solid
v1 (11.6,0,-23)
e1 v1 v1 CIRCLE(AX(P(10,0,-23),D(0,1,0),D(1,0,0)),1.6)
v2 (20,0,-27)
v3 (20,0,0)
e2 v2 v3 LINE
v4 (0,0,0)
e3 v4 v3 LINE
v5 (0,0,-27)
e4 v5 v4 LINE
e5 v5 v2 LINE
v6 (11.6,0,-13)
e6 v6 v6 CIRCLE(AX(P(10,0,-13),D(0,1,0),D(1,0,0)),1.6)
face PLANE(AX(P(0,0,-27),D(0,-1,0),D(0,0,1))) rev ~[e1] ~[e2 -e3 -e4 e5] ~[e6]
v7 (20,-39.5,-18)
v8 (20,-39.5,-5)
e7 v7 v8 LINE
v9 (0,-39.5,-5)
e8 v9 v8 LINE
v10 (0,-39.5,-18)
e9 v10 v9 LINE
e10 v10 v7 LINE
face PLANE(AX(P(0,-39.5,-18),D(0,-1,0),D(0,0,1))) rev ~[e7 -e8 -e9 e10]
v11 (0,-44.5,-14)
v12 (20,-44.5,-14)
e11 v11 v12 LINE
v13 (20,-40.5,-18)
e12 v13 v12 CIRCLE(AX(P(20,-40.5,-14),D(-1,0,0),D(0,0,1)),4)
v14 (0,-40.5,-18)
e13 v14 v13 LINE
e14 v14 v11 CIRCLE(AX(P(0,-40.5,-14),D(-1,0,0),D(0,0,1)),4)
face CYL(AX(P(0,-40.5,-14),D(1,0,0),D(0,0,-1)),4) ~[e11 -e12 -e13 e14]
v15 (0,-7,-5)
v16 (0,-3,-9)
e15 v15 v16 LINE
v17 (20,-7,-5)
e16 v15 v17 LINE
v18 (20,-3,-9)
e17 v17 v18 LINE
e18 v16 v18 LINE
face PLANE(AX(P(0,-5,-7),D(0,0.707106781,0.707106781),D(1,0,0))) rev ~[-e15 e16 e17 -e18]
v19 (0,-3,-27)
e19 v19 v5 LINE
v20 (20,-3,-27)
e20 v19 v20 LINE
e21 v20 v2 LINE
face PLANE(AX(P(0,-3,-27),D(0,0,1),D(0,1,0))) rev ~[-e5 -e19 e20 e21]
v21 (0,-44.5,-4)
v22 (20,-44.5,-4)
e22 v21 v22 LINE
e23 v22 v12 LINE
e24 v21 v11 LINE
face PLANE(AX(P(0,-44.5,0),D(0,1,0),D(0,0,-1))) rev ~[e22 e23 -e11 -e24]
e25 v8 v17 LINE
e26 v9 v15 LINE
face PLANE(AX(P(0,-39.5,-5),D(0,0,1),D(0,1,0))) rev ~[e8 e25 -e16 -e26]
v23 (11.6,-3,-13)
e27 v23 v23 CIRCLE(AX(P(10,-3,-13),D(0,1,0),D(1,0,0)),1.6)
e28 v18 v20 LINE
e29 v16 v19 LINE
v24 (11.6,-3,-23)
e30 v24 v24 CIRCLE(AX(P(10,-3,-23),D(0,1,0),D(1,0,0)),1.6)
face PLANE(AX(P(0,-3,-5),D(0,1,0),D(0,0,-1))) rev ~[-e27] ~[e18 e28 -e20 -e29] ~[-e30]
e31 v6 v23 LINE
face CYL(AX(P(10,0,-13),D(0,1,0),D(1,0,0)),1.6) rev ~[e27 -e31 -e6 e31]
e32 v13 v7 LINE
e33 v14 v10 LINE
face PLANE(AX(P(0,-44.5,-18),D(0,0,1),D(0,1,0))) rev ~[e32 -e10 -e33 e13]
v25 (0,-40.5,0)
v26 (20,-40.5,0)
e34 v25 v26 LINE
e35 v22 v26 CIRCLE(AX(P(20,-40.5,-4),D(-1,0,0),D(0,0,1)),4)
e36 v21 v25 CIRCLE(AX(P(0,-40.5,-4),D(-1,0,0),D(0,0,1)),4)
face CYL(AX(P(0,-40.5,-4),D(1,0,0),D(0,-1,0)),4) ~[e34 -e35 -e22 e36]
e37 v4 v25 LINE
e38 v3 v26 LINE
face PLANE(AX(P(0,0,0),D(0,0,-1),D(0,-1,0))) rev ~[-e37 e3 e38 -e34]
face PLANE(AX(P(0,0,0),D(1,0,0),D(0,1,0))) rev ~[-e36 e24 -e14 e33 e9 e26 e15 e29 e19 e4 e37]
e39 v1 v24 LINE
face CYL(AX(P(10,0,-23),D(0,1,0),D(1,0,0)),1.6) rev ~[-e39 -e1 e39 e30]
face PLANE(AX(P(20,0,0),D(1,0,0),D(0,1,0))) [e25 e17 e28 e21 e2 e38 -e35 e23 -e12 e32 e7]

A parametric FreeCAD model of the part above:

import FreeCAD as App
import Part
import Sketcher

V = App.Vector
Q = App.Units.Quantity


def edges_at(feature, points):
    """Names of the edges that pass closest to the given points."""
    edges = feature.Shape.Edges
    near = lambda p: min(range(len(edges)), key=lambda i: edges[i].distToShape(Part.Vertex(*p))[0])
    return sorted({f"Edge{near(p) + 1}" for p in points})


def add_polygon(sketch, points):
    """Adds a closed chain of lines whose ends are joined by coincident constraints."""
    first, n = sketch.GeometryCount, len(points)
    for a, b in zip(points, points[1:] + points[:1]):
        sketch.addGeometry(Part.LineSegment(App.Vector(*a, 0), App.Vector(*b, 0)), False)
    for i in range(n):
        sketch.addConstraint(Sketcher.Constraint("Coincident", first + i, 2, first + (i + 1) % n, 1))

doc = App.newDocument("Part")
params = doc.addObject("Spreadsheet::Sheet", "Params")
for row, (alias, value) in enumerate([
    ("sketch1_width", "5 mm"),
    ("sketch1_width2", "3 mm"),
    ("sketch1_height", "27 mm"),
    ("sketch1_height2", "18 mm"),
    ("sketch1_width3", "44.5 mm"),
    ("pad1_length", "20 mm"),
    ("fillet_radius", "4 mm"),
    ("chamfer_size", "4 mm"),
    ("sketch2_diameter", "3.2 mm"),
    ("pocket1_length", "3 mm"),
], start=1):
    params.set(f"A{row}", alias)
    params.set(f"B{row}", "=" + value)
    params.setAlias(f"B{row}", alias)

body = doc.addObject("PartDesign::Body", "Body")

# Sketch on YZ plane
sketch1 = body.newObject("Sketcher::SketchObject", "Sketch")
sketch1.AttachmentSupport = (doc.getObject("YZ_Plane"), [""])
sketch1.MapMode = "FlatFace"
add_polygon(sketch1, [(0, -27), (0, 0), (-44.5, 0), (-44.5, -18), (-39.5, -18), (-39.5, -5), (-3, -5), (-3, -27)])  # lines 0-7
sketch1.addConstraint(Sketcher.Constraint("Vertical", 0))
sketch1.addConstraint(Sketcher.Constraint("Horizontal", 1))
sketch1.addConstraint(Sketcher.Constraint("Vertical", 2))
sketch1.addConstraint(Sketcher.Constraint("Horizontal", 3))
sketch1.addConstraint(Sketcher.Constraint("Vertical", 4))
sketch1.addConstraint(Sketcher.Constraint("Horizontal", 5))
sketch1.addConstraint(Sketcher.Constraint("Vertical", 6))
sketch1.addConstraint(Sketcher.Constraint("Horizontal", 7))
sketch1.addConstraint(Sketcher.Constraint("Coincident", 0, 2, -1, 1))
sketch1.addConstraint(Sketcher.Constraint("DistanceX", 3, 1, 3, 2, Q("5 mm")))
sketch1.addConstraint(Sketcher.Constraint("DistanceX", 7, 1, 7, 2, Q("3 mm")))
sketch1.addConstraint(Sketcher.Constraint("DistanceY", 0, 1, 0, 2, Q("27 mm")))
sketch1.addConstraint(Sketcher.Constraint("DistanceY", 2, 2, 2, 1, Q("18 mm")))
sketch1.addConstraint(Sketcher.Constraint("DistanceX", 1, 2, 1, 1, Q("44.5 mm")))
sketch1.addConstraint(Sketcher.Constraint("DistanceY", 4, 2, -1, 1, Q("5 mm")))
sketch1.setExpression("Constraints[17]", "Params.sketch1_width")
sketch1.setExpression("Constraints[18]", "Params.sketch1_width2")
sketch1.setExpression("Constraints[19]", "Params.sketch1_height")
sketch1.setExpression("Constraints[20]", "Params.sketch1_height2")
sketch1.setExpression("Constraints[21]", "Params.sketch1_width3")
pad1 = body.newObject("PartDesign::Pad", "Pad")
pad1.Profile = sketch1
pad1.setExpression("Length", "Params.pad1_length")
doc.recompute()

fillet = body.newObject("PartDesign::Fillet", "Fillet")
fillet.Base = (pad1, edges_at(pad1, [(10, -44.5, 0), (10, -44.5, -18)]))
fillet.setExpression("Radius", "Params.fillet_radius")
doc.recompute()

chamfer = body.newObject("PartDesign::Chamfer", "Chamfer")
chamfer.Base = (fillet, edges_at(fillet, [(10, -3, -5)]))
chamfer.setExpression("Size", "Params.chamfer_size")

# Sketch on XZ plane
sketch2 = body.newObject("Sketcher::SketchObject", "Sketch001")
sketch2.AttachmentSupport = (doc.getObject("XZ_Plane"), [""])
sketch2.MapMode = "FlatFace"
sketch2.addGeometry(Part.Circle(V(10, -13, 0), V(0, 0, 1), 1.6), False)
sketch2.addGeometry(Part.Circle(V(10, -23, 0), V(0, 0, 1), 1.6), False)
sketch2.addConstraint(Sketcher.Constraint("Equal", 0, 1))
sketch2.addConstraint(Sketcher.Constraint("Vertical", 0, 3, 1, 3))
sketch2.addConstraint(Sketcher.Constraint("Diameter", 0, Q("3.2 mm")))
sketch2.addConstraint(Sketcher.Constraint("DistanceX", -1, 1, 0, 3, Q("10 mm")))
sketch2.addConstraint(Sketcher.Constraint("DistanceY", 0, 3, -1, 1, Q("13 mm")))
sketch2.addConstraint(Sketcher.Constraint("DistanceY", 1, 3, 0, 3, Q("10 mm")))
sketch2.setExpression("Constraints[2]", "Params.sketch2_diameter")
pocket1 = body.newObject("PartDesign::Pocket", "Pocket")
pocket1.Profile = sketch2
pocket1.setExpression("Length", "Params.pocket1_length")
pocket1.Reversed = True

doc.recompute()
